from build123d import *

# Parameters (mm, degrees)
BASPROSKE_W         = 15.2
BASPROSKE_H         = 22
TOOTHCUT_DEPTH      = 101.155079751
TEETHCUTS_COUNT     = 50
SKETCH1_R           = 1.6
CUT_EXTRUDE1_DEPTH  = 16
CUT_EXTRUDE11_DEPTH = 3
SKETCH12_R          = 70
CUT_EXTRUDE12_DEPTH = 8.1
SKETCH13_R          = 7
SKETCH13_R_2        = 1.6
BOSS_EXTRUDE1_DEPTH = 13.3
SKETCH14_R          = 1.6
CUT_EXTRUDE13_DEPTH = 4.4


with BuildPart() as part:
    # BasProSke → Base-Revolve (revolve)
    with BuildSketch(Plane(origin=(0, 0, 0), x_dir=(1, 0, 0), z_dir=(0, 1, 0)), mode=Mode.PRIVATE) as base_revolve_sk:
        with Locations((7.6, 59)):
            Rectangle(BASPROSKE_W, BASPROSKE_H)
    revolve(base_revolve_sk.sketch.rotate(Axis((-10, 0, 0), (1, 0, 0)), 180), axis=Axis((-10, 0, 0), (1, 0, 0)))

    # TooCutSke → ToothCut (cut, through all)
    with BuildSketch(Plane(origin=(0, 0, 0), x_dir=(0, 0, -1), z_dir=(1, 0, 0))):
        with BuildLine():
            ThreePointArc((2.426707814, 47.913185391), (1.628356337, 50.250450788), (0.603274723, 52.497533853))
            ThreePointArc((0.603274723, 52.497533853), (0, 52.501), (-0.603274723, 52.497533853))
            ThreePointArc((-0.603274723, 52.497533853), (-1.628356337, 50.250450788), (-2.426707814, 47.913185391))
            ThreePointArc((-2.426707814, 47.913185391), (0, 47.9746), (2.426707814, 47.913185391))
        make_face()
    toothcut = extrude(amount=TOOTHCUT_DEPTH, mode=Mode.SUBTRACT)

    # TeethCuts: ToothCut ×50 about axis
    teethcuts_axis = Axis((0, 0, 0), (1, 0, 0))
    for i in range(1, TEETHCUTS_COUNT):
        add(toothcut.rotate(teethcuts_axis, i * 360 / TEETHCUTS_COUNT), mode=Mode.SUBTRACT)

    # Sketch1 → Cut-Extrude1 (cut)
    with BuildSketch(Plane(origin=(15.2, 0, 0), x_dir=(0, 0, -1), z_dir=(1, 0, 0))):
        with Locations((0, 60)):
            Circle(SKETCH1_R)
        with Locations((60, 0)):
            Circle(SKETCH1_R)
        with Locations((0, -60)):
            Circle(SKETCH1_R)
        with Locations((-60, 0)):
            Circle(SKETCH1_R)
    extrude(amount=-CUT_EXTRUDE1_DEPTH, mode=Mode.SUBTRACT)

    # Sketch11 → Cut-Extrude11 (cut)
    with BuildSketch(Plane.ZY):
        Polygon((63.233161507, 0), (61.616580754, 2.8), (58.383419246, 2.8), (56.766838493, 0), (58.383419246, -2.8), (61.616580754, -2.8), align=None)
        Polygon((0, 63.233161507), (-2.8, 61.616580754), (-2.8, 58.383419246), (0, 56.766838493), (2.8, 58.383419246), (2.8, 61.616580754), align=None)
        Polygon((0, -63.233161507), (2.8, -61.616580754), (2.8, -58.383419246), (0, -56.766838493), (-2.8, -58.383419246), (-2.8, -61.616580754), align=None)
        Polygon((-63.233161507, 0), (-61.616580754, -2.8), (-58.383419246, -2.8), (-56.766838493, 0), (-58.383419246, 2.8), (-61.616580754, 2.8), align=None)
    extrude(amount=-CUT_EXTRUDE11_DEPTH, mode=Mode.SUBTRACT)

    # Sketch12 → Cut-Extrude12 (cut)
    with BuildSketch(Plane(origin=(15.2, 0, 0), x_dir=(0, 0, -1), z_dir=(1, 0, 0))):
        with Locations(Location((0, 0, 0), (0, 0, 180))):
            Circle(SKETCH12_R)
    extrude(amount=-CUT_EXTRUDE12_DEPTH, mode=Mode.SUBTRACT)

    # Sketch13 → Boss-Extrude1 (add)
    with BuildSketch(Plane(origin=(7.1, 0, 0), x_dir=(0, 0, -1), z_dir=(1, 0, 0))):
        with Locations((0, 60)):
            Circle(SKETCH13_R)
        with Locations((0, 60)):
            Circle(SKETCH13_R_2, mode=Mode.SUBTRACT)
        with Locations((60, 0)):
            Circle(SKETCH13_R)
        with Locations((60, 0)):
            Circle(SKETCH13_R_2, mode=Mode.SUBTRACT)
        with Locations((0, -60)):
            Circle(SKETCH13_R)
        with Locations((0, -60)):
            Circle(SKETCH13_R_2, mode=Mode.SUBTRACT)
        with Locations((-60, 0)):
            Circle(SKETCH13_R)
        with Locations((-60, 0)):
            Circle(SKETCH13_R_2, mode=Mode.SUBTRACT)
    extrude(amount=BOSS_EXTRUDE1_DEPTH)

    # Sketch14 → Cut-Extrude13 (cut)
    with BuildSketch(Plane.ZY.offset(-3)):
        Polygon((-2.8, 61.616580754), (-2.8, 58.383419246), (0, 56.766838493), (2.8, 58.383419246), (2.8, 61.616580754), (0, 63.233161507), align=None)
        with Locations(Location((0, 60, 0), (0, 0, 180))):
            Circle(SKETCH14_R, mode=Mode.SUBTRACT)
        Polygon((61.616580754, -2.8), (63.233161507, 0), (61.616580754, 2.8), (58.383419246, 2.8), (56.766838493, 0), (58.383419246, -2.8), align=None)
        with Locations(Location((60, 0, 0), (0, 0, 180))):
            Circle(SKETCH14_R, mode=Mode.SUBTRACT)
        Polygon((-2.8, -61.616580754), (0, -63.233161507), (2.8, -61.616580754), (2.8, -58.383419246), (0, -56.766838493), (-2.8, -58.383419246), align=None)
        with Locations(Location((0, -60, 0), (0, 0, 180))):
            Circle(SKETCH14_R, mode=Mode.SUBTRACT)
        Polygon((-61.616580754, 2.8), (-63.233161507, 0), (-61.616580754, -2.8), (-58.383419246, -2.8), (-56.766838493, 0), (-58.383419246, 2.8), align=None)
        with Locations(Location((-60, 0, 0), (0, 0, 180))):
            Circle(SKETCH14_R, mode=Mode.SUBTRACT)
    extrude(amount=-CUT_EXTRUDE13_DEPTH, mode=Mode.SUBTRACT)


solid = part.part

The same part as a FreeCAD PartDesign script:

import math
import FreeCAD as App
import Part
import Sketcher
Q = App.Units.Quantity

doc = App.newDocument("Part")
body = doc.addObject("PartDesign::Body", "Body")

sketch1 = body.newObject("Sketcher::SketchObject", "Sketch")
sketch1.AttachmentSupport = (doc.getObject("XZ_Plane"), [""])
sketch1.MapMode = "FlatFace"
sketch1.addGeometry([
    Part.LineSegment(App.Vector(0, -70, 0), App.Vector(0, -48, 0)),
    Part.LineSegment(App.Vector(0, -48, 0), App.Vector(15, -48, 0)),
    Part.LineSegment(App.Vector(15, -48, 0), App.Vector(15, -70, 0)),
    Part.LineSegment(App.Vector(15, -70, 0), App.Vector(0, -70, 0)),
], False)
sketch1.addConstraint([
    Sketcher.Constraint("Coincident", 0, 2, 1, 1),
    Sketcher.Constraint("Coincident", 1, 2, 2, 1),
    Sketcher.Constraint("Coincident", 2, 2, 3, 1),
    Sketcher.Constraint("Coincident", 3, 2, 0, 1),
    Sketcher.Constraint("Vertical", 0),
    Sketcher.Constraint("Horizontal", 1),
    Sketcher.Constraint("Vertical", 2),
    Sketcher.Constraint("Horizontal", 3),
    Sketcher.Constraint("PointOnObject", 0, 2, -2),
    Sketcher.Constraint("DistanceY", 0, 1, 0, 2, 22.0),
    Sketcher.Constraint("DistanceX", 1, 1, 1, 2, 15.2),
    Sketcher.Constraint("DistanceY", 0, 2, -1, 1, 48.0),
])
revolution = body.newObject("PartDesign::Revolution", "Revolution")
revolution.Profile = sketch1
revolution.ReferenceAxis = (sketch1, ["H_Axis"])
revolution.Angle = 360

sketch2 = body.newObject("Sketcher::SketchObject", "Sketch001")
sketch2.AttachmentSupport = (doc.getObject("YZ_Plane"), [""])
sketch2.MapMode = "FlatFace"
sketch2.addGeometry([
    Part.ArcOfCircle(Part.Circle(App.Vector(41, 21.6, 0), App.Vector(0, 0, 1), 25), math.radians(-73.97), math.radians(-62.65)),
    Part.ArcOfCircle(Part.Circle(App.Vector(0, 0, 0), App.Vector(0, 0, 1), 52.5), math.radians(-0.66), math.radians(0.66)),
    Part.ArcOfCircle(Part.Circle(App.Vector(41, -21.6, 0), App.Vector(0, 0, 1), 25), math.radians(62.65), math.radians(73.97)),
    Part.ArcOfCircle(Part.Circle(App.Vector(0, 0, 0), App.Vector(0, 0, 1), 48), math.radians(-2.9), math.radians(2.9)),
], False)
sketch2.addConstraint([
    Sketcher.Constraint("Coincident", 0, 2, 1, 1),
    Sketcher.Constraint("Coincident", 1, 2, 2, 1),
    Sketcher.Constraint("Coincident", 2, 2, 3, 2),
    Sketcher.Constraint("Coincident", 3, 1, 0, 1),
    Sketcher.Constraint("Coincident", 1, 3, -1, 1),
    Sketcher.Constraint("Coincident", 3, 3, -1, 1),
    Sketcher.Constraint("Equal", 0, 2),
    Sketcher.Constraint("Symmetric", 0, 3, 2, 3, -1),
    Sketcher.Constraint("Radius", 0, 25.0),
    Sketcher.Constraint("Radius", 3, 47.9746),
    Sketcher.Constraint("Radius", 1, 52.501006),
    Sketcher.Constraint("DistanceY", 0, 2, 0, 3, 22.2048),
    Sketcher.Constraint("DistanceY", 2, 3, 0, 3, 43.203051),
])
pocket1 = body.newObject("PartDesign::Pocket", "Pocket")
pocket1.Profile = sketch2
pocket1.Type = "ThroughAll"
pocket1.Reversed = True
doc.recompute()

polarpattern = body.newObject("PartDesign::PolarPattern", "PolarPattern")
polarpattern.Originals = [pocket1]
polarpattern.Axis = (doc.getObject("X_Axis"), [""])
polarpattern.Angle = 360
polarpattern.Occurrences = 50
body.Tip = polarpattern

sketch3 = body.newObject("Sketcher::SketchObject", "Sketch002")
sketch3.AttachmentSupport = (doc.getObject("YZ_Plane"), [""])
sketch3.MapMode = "FlatFace"
sketch3.AttachmentOffset = App.Placement(App.Vector(0, 0, 15.2), App.Rotation())
sketch3.addGeometry([
    Part.Circle(App.Vector(60, 0, 0), App.Vector(0, 0, 1), 1.6),
    Part.Circle(App.Vector(0, -60, 0), App.Vector(0, 0, 1), 1.6),
    Part.Circle(App.Vector(-60, 0, 0), App.Vector(0, 0, 1), 1.6),
    Part.Circle(App.Vector(0, 60, 0), App.Vector(0, 0, 1), 1.6),
], False)
sketch3.addConstraint([
    Sketcher.Constraint("Equal", 0, 1),
    Sketcher.Constraint("Equal", 1, 2),
    Sketcher.Constraint("Equal", 2, 3),
    Sketcher.Constraint("Symmetric", 0, 3, 2, 3, -1, 1),
    Sketcher.Constraint("Symmetric", 1, 3, 3, 3, -1, 1),
    Sketcher.Constraint("PointOnObject", 0, 3, -1),
    Sketcher.Constraint("PointOnObject", 1, 3, -2),
    Sketcher.Constraint("Diameter", 0, 3.2),
    Sketcher.Constraint("DistanceX", -1, 1, 0, 3, 60.0),
    Sketcher.Constraint("DistanceY", 1, 3, -1, 1, 60.0),
])
pocket2 = body.newObject("PartDesign::Pocket", "Pocket001")
pocket2.Profile = sketch3
pocket2.Length = 16

sketch4 = body.newObject("Sketcher::SketchObject", "Sketch003")
sketch4.AttachmentSupport = (doc.getObject("YZ_Plane"), [""])
sketch4.MapMode = "FlatFace"
sketch4.addGeometry([
    Part.LineSegment(App.Vector(0, 63.2, 0), App.Vector(2.8, 61.6, 0)),
    Part.LineSegment(App.Vector(2.8, 61.6, 0), App.Vector(2.8, 58.4, 0)),
    Part.LineSegment(App.Vector(2.8, 58.4, 0), App.Vector(0, 56.8, 0)),
    Part.LineSegment(App.Vector(0, 56.8, 0), App.Vector(-2.8, 58.4, 0)),
    Part.LineSegment(App.Vector(-2.8, 58.4, 0), App.Vector(-2.8, 61.6, 0)),
    Part.LineSegment(App.Vector(-2.8, 61.6, 0), App.Vector(0, 63.2, 0)),
    Part.LineSegment(App.Vector(63.2, 0, 0), App.Vector(61.6, -2.8, 0)),
    Part.LineSegment(App.Vector(61.6, -2.8, 0), App.Vector(58.4, -2.8, 0)),
    Part.LineSegment(App.Vector(58.4, -2.8, 0), App.Vector(56.8, 0, 0)),
    Part.LineSegment(App.Vector(56.8, 0, 0), App.Vector(58.4, 2.8, 0)),
    Part.LineSegment(App.Vector(58.4, 2.8, 0), App.Vector(61.6, 2.8, 0)),
    Part.LineSegment(App.Vector(61.6, 2.8, 0), App.Vector(63.2, 0, 0)),
    Part.LineSegment(App.Vector(-63.2, 0, 0), App.Vector(-61.6, 2.8, 0)),
    Part.LineSegment(App.Vector(-61.6, 2.8, 0), App.Vector(-58.4, 2.8, 0)),
    Part.LineSegment(App.Vector(-58.4, 2.8, 0), App.Vector(-56.8, 0, 0)),
    Part.LineSegment(App.Vector(-56.8, 0, 0), App.Vector(-58.4, -2.8, 0)),
    Part.LineSegment(App.Vector(-58.4, -2.8, 0), App.Vector(-61.6, -2.8, 0)),
    Part.LineSegment(App.Vector(-61.6, -2.8, 0), App.Vector(-63.2, 0, 0)),
    Part.LineSegment(App.Vector(0, -63.2, 0), App.Vector(-2.8, -61.6, 0)),
    Part.LineSegment(App.Vector(-2.8, -61.6, 0), App.Vector(-2.8, -58.4, 0)),
    Part.LineSegment(App.Vector(-2.8, -58.4, 0), App.Vector(0, -56.8, 0)),
    Part.LineSegment(App.Vector(0, -56.8, 0), App.Vector(2.8, -58.4, 0)),
    Part.LineSegment(App.Vector(2.8, -58.4, 0), App.Vector(2.8, -61.6, 0)),
    Part.LineSegment(App.Vector(2.8, -61.6, 0), App.Vector(0, -63.2, 0)),
], False)
sketch4.addConstraint([
    Sketcher.Constraint("Coincident", 0, 2, 1, 1),
    Sketcher.Constraint("Coincident", 1, 2, 2, 1),
    Sketcher.Constraint("Coincident", 2, 2, 3, 1),
    Sketcher.Constraint("Coincident", 3, 2, 4, 1),
    Sketcher.Constraint("Coincident", 4, 2, 5, 1),
    Sketcher.Constraint("Coincident", 5, 2, 0, 1),
    Sketcher.Constraint("Coincident", 6, 2, 7, 1),
    Sketcher.Constraint("Coincident", 7, 2, 8, 1),
    Sketcher.Constraint("Coincident", 8, 2, 9, 1),
    Sketcher.Constraint("Coincident", 9, 2, 10, 1),
    Sketcher.Constraint("Coincident", 10, 2, 11, 1),
    Sketcher.Constraint("Coincident", 11, 2, 6, 1),
    Sketcher.Constraint("Coincident", 12, 2, 13, 1),
    Sketcher.Constraint("Coincident", 13, 2, 14, 1),
    Sketcher.Constraint("Coincident", 14, 2, 15, 1),
    Sketcher.Constraint("Coincident", 15, 2, 16, 1),
    Sketcher.Constraint("Coincident", 16, 2, 17, 1),
    Sketcher.Constraint("Coincident", 17, 2, 12, 1),
    Sketcher.Constraint("Coincident", 18, 2, 19, 1),
    Sketcher.Constraint("Coincident", 19, 2, 20, 1),
    Sketcher.Constraint("Coincident", 20, 2, 21, 1),
    Sketcher.Constraint("Coincident", 21, 2, 22, 1),
    Sketcher.Constraint("Coincident", 22, 2, 23, 1),
    Sketcher.Constraint("Coincident", 23, 2, 18, 1),
    Sketcher.Constraint("Vertical", 1),
    Sketcher.Constraint("Vertical", 4),
    Sketcher.Constraint("Horizontal", 7),
    Sketcher.Constraint("Horizontal", 10),
    Sketcher.Constraint("Horizontal", 13),
    Sketcher.Constraint("Horizontal", 16),
    Sketcher.Constraint("Vertical", 19),
    Sketcher.Constraint("Vertical", 22),
    Sketcher.Constraint("Symmetric", 6, 2, 12, 2, -1, 1),
    Sketcher.Constraint("Symmetric", 8, 2, 14, 2, -1, 1),
    Sketcher.Constraint("Symmetric", 9, 2, 15, 2, -1, 1),
    Sketcher.Constraint("Symmetric", 11, 2, 17, 2, -1, 1),
    Sketcher.Constraint("Symmetric", 0, 2, 18, 2, -1, 1),
    Sketcher.Constraint("Symmetric", 2, 2, 20, 2, -1, 1),
    Sketcher.Constraint("Symmetric", 3, 2, 21, 2, -1, 1),
    Sketcher.Constraint("Symmetric", 5, 2, 23, 2, -1, 1),
    Sketcher.Constraint("Symmetric", 1, 2, 3, 2, -2),
    Sketcher.Constraint("Symmetric", 10, 2, 12, 2, -2),
    Sketcher.Constraint("PointOnObject", 2, 2, -2),
    Sketcher.Constraint("PointOnObject", 5, 2, -2),
    Sketcher.Constraint("PointOnObject", 8, 2, -1),
    Sketcher.Constraint("PointOnObject", 11, 2, -1),
    Sketcher.Constraint("Parallel", 0, 3),
    Sketcher.Constraint("Parallel", 2, 5),
    Sketcher.Constraint("Perpendicular", 3, 6),
    Sketcher.Constraint("Perpendicular", 5, 8),
    Sketcher.Constraint("Parallel", 6, 9),
    Sketcher.Constraint("Parallel", 11, 14),
    Sketcher.Constraint("Parallel", 14, 17),
    Sketcher.Constraint("Perpendicular", 17, 20),
    Sketcher.Constraint("Parallel", 20, 23),
    Sketcher.Constraint("Equal", 16, 1),
    Sketcher.Constraint("Equal", 5, 6),
    Sketcher.Constraint("Angle", 0, Q("-30 deg")),
    Sketcher.Constraint("DistanceX", -1, 1, 0, 2, 2.8),
    Sketcher.Constraint("DistanceX", 7, 2, 7, 1, 3.233162),
    Sketcher.Constraint("DistanceY", -1, 1, 0, 2, 61.616581),
    Sketcher.Constraint("DistanceX", -1, 1, 6, 2, 61.616581),
])
pocket3 = body.newObject("PartDesign::Pocket", "Pocket002")
pocket3.Profile = sketch4
pocket3.Length = 3
pocket3.Reversed = True

sketch5 = body.newObject("Sketcher::SketchObject", "Sketch004")
sketch5.AttachmentSupport = (doc.getObject("YZ_Plane"), [""])
sketch5.MapMode = "FlatFace"
sketch5.AttachmentOffset = App.Placement(App.Vector(0, 0, 15.2), App.Rotation())
sketch5.addGeometry(Part.Circle(App.Vector(0, 0, 0), App.Vector(0, 0, 1), 70), False)
sketch5.addConstraint([
    Sketcher.Constraint("Coincident", 0, 3, -1, 1),
    Sketcher.Constraint("Diameter", 0, 140.0),
])
pocket4 = body.newObject("PartDesign::Pocket", "Pocket003")
pocket4.Profile = sketch5
pocket4.Length = 8.1

sketch6 = body.newObject("Sketcher::SketchObject", "Sketch005")
sketch6.AttachmentSupport = (doc.getObject("YZ_Plane"), [""])
sketch6.MapMode = "FlatFace"
sketch6.AttachmentOffset = App.Placement(App.Vector(0, 0, 7.1), App.Rotation())
sketch6.addGeometry([
    Part.Circle(App.Vector(60, 0, 0), App.Vector(0, 0, 1), 7),
    Part.Circle(App.Vector(60, 0, 0), App.Vector(0, 0, 1), 1.6),
    Part.Circle(App.Vector(0, -60, 0), App.Vector(0, 0, 1), 7),
    Part.Circle(App.Vector(0, -60, 0), App.Vector(0, 0, 1), 1.6),
    Part.Circle(App.Vector(-60, 0, 0), App.Vector(0, 0, 1), 7),
    Part.Circle(App.Vector(-60, 0, 0), App.Vector(0, 0, 1), 1.6),
    Part.Circle(App.Vector(0, 60, 0), App.Vector(0, 0, 1), 7),
    Part.Circle(App.Vector(0, 60, 0), App.Vector(0, 0, 1), 1.6),
], False)
sketch6.addConstraint([
    Sketcher.Constraint("Coincident", 1, 3, 0, 3),
    Sketcher.Constraint("Coincident", 3, 3, 2, 3),
    Sketcher.Constraint("Coincident", 5, 3, 4, 3),
    Sketcher.Constraint("Coincident", 7, 3, 6, 3),
    Sketcher.Constraint("Equal", 0, 2),
    Sketcher.Constraint("Equal", 1, 3),
    Sketcher.Constraint("Equal", 2, 4),
    Sketcher.Constraint("Equal", 3, 5),
    Sketcher.Constraint("Equal", 4, 6),
    Sketcher.Constraint("Equal", 5, 7),
    Sketcher.Constraint("Symmetric", 0, 3, 4, 3, -1, 1),
    Sketcher.Constraint("Symmetric", 2, 3, 6, 3, -1, 1),
    Sketcher.Constraint("PointOnObject", 0, 3, -1),
    Sketcher.Constraint("PointOnObject", 2, 3, -2),
    Sketcher.Constraint("Diameter", 0, 14.0),
    Sketcher.Constraint("Diameter", 1, 3.2),
    Sketcher.Constraint("DistanceX", -1, 1, 0, 3, 60.0),
    Sketcher.Constraint("DistanceY", 2, 3, -1, 1, 60.0),
])
pad1 = body.newObject("PartDesign::Pad", "Pad")
pad1.Profile = sketch6
pad1.Length = 13.3

sketch7 = body.newObject("Sketcher::SketchObject", "Sketch006")
sketch7.AttachmentSupport = (doc.getObject("YZ_Plane"), [""])
sketch7.MapMode = "FlatFace"
sketch7.AttachmentOffset = App.Placement(App.Vector(0, 0, 3), App.Rotation())
sketch7.addGeometry([
    Part.LineSegment(App.Vector(61.6, -2.8, 0), App.Vector(58.4, -2.8, 0)),
    Part.LineSegment(App.Vector(58.4, -2.8, 0), App.Vector(56.8, 0, 0)),
    Part.LineSegment(App.Vector(56.8, 0, 0), App.Vector(58.4, 2.8, 0)),
    Part.LineSegment(App.Vector(58.4, 2.8, 0), App.Vector(61.6, 2.8, 0)),
    Part.LineSegment(App.Vector(61.6, 2.8, 0), App.Vector(63.2, 0, 0)),
    Part.LineSegment(App.Vector(63.2, 0, 0), App.Vector(61.6, -2.8, 0)),
    Part.Circle(App.Vector(60, 0, 0), App.Vector(0, 0, 1), 1.6),
    Part.LineSegment(App.Vector(-2.8, 61.6, 0), App.Vector(0, 63.2, 0)),
    Part.LineSegment(App.Vector(0, 63.2, 0), App.Vector(2.8, 61.6, 0)),
    Part.LineSegment(App.Vector(2.8, 61.6, 0), App.Vector(2.8, 58.4, 0)),
    Part.LineSegment(App.Vector(2.8, 58.4, 0), App.Vector(0, 56.8, 0)),
    Part.LineSegment(App.Vector(0, 56.8, 0), App.Vector(-2.8, 58.4, 0)),
    Part.LineSegment(App.Vector(-2.8, 58.4, 0), App.Vector(-2.8, 61.6, 0)),
    Part.Circle(App.Vector(0, 60, 0), App.Vector(0, 0, 1), 1.6),
    Part.LineSegment(App.Vector(-61.6, -2.8, 0), App.Vector(-63.2, 0, 0)),
    Part.LineSegment(App.Vector(-63.2, 0, 0), App.Vector(-61.6, 2.8, 0)),
    Part.LineSegment(App.Vector(-61.6, 2.8, 0), App.Vector(-58.4, 2.8, 0)),
    Part.LineSegment(App.Vector(-58.4, 2.8, 0), App.Vector(-56.8, 0, 0)),
    Part.LineSegment(App.Vector(-56.8, 0, 0), App.Vector(-58.4, -2.8, 0)),
    Part.LineSegment(App.Vector(-58.4, -2.8, 0), App.Vector(-61.6, -2.8, 0)),
    Part.Circle(App.Vector(-60, 0, 0), App.Vector(0, 0, 1), 1.6),
    Part.LineSegment(App.Vector(2.8, -61.6, 0), App.Vector(0, -63.2, 0)),
    Part.LineSegment(App.Vector(0, -63.2, 0), App.Vector(-2.8, -61.6, 0)),
    Part.LineSegment(App.Vector(-2.8, -61.6, 0), App.Vector(-2.8, -58.4, 0)),
    Part.LineSegment(App.Vector(-2.8, -58.4, 0), App.Vector(0, -56.8, 0)),
    Part.LineSegment(App.Vector(0, -56.8, 0), App.Vector(2.8, -58.4, 0)),
    Part.LineSegment(App.Vector(2.8, -58.4, 0), App.Vector(2.8, -61.6, 0)),
    Part.Circle(App.Vector(0, -60, 0), App.Vector(0, 0, 1), 1.6),
], False)
sketch7.addConstraint([
    Sketcher.Constraint("Coincident", 0, 2, 1, 1),
    Sketcher.Constraint("Coincident", 1, 2, 2, 1),
    Sketcher.Constraint("Coincident", 2, 2, 3, 1),
    Sketcher.Constraint("Coincident", 3, 2, 4, 1),
    Sketcher.Constraint("Coincident", 4, 2, 5, 1),
    Sketcher.Constraint("Coincident", 5, 2, 0, 1),
    Sketcher.Constraint("Coincident", 7, 2, 8, 1),
    Sketcher.Constraint("Coincident", 8, 2, 9, 1),
    Sketcher.Constraint("Coincident", 9, 2, 10, 1),
    Sketcher.Constraint("Coincident", 10, 2, 11, 1),
    Sketcher.Constraint("Coincident", 11, 2, 12, 1),
    Sketcher.Constraint("Coincident", 12, 2, 7, 1),
    Sketcher.Constraint("Coincident", 14, 2, 15, 1),
    Sketcher.Constraint("Coincident", 15, 2, 16, 1),
    Sketcher.Constraint("Coincident", 16, 2, 17, 1),
    Sketcher.Constraint("Coincident", 17, 2, 18, 1),
    Sketcher.Constraint("Coincident", 18, 2, 19, 1),
    Sketcher.Constraint("Coincident", 19, 2, 14, 1),
    Sketcher.Constraint("Coincident", 21, 2, 22, 1),
    Sketcher.Constraint("Coincident", 22, 2, 23, 1),
    Sketcher.Constraint("Coincident", 23, 2, 24, 1),
    Sketcher.Constraint("Coincident", 24, 2, 25, 1),
    Sketcher.Constraint("Coincident", 25, 2, 26, 1),
    Sketcher.Constraint("Coincident", 26, 2, 21, 1),
    Sketcher.Constraint("Horizontal", 0),
    Sketcher.Constraint("Horizontal", 3),
    Sketcher.Constraint("Vertical", 9),
    Sketcher.Constraint("Vertical", 12),
    Sketcher.Constraint("Horizontal", 16),
    Sketcher.Constraint("Horizontal", 19),
    Sketcher.Constraint("Vertical", 23),
    Sketcher.Constraint("Vertical", 26),
    Sketcher.Constraint("Equal", 6, 13),
    Sketcher.Constraint("Equal", 13, 20),
    Sketcher.Constraint("Equal", 20, 27),
    Sketcher.Constraint("Symmetric", 6, 3, 20, 3, -1, 1),
    Sketcher.Constraint("Symmetric", 13, 3, 27, 3, -1, 1),
    Sketcher.Constraint("Symmetric", 4, 2, 14, 2, -1, 1),
    Sketcher.Constraint("Symmetric", 5, 2, 15, 2, -1, 1),
    Sketcher.Constraint("Symmetric", 1, 2, 17, 2, -1, 1),
    Sketcher.Constraint("Symmetric", 2, 2, 18, 2, -1, 1),
    Sketcher.Constraint("Symmetric", 7, 2, 21, 2, -1, 1),
    Sketcher.Constraint("Symmetric", 8, 2, 22, 2, -1, 1),
    Sketcher.Constraint("Symmetric", 10, 2, 24, 2, -1, 1),
    Sketcher.Constraint("Symmetric", 11, 2, 25, 2, -1, 1),
    Sketcher.Constraint("Symmetric", 9, 2, 11, 2, -2),
    Sketcher.Constraint("Symmetric", 3, 2, 15, 2, -2),
    Sketcher.Constraint("PointOnObject", 6, 3, -1),
    Sketcher.Constraint("PointOnObject", 13, 3, -2),
    Sketcher.Constraint("PointOnObject", 1, 2, -1),
    Sketcher.Constraint("PointOnObject", 4, 2, -1),
    Sketcher.Constraint("PointOnObject", 7, 2, -2),
    Sketcher.Constraint("PointOnObject", 10, 2, -2),
    Sketcher.Constraint("Parallel", 1, 4),
    Sketcher.Constraint("Parallel", 2, 5),
    Sketcher.Constraint("Perpendicular", 4, 7),
    Sketcher.Constraint("Perpendicular", 5, 8),
    Sketcher.Constraint("Parallel", 7, 10),
    Sketcher.Constraint("Perpendicular", 10, 14),
    Sketcher.Constraint("Parallel", 14, 17),
    Sketcher.Constraint("Perpendicular", 17, 21),
    Sketcher.Constraint("Parallel", 21, 24),
    Sketcher.Constraint("Equal", 19, 9),
    Sketcher.Constraint("Equal", 5, 7),
    Sketcher.Constraint("Diameter", 6, 3.2),
    Sketcher.Constraint("Angle", 1, Q("120 deg")),
    Sketcher.Constraint("DistanceX", -1, 1, 6, 3, 60.0),
    Sketcher.Constraint("DistanceY", -1, 1, 13, 3, 60.0),
    Sketcher.Constraint("DistanceY", 0, 2, -1, 1, 2.8),
    Sketcher.Constraint("DistanceX", 0, 2, 0, 1, 3.233162),
    Sketcher.Constraint("DistanceX", -1, 1, 0, 2, 58.383419),
    Sketcher.Constraint("DistanceY", -1, 1, 7, 2, 63.233162),
])
pocket5 = body.newObject("PartDesign::Pocket", "Pocket004")
pocket5.Profile = sketch7
pocket5.Length = 4.4
pocket5.Reversed = True

doc.recompute()
